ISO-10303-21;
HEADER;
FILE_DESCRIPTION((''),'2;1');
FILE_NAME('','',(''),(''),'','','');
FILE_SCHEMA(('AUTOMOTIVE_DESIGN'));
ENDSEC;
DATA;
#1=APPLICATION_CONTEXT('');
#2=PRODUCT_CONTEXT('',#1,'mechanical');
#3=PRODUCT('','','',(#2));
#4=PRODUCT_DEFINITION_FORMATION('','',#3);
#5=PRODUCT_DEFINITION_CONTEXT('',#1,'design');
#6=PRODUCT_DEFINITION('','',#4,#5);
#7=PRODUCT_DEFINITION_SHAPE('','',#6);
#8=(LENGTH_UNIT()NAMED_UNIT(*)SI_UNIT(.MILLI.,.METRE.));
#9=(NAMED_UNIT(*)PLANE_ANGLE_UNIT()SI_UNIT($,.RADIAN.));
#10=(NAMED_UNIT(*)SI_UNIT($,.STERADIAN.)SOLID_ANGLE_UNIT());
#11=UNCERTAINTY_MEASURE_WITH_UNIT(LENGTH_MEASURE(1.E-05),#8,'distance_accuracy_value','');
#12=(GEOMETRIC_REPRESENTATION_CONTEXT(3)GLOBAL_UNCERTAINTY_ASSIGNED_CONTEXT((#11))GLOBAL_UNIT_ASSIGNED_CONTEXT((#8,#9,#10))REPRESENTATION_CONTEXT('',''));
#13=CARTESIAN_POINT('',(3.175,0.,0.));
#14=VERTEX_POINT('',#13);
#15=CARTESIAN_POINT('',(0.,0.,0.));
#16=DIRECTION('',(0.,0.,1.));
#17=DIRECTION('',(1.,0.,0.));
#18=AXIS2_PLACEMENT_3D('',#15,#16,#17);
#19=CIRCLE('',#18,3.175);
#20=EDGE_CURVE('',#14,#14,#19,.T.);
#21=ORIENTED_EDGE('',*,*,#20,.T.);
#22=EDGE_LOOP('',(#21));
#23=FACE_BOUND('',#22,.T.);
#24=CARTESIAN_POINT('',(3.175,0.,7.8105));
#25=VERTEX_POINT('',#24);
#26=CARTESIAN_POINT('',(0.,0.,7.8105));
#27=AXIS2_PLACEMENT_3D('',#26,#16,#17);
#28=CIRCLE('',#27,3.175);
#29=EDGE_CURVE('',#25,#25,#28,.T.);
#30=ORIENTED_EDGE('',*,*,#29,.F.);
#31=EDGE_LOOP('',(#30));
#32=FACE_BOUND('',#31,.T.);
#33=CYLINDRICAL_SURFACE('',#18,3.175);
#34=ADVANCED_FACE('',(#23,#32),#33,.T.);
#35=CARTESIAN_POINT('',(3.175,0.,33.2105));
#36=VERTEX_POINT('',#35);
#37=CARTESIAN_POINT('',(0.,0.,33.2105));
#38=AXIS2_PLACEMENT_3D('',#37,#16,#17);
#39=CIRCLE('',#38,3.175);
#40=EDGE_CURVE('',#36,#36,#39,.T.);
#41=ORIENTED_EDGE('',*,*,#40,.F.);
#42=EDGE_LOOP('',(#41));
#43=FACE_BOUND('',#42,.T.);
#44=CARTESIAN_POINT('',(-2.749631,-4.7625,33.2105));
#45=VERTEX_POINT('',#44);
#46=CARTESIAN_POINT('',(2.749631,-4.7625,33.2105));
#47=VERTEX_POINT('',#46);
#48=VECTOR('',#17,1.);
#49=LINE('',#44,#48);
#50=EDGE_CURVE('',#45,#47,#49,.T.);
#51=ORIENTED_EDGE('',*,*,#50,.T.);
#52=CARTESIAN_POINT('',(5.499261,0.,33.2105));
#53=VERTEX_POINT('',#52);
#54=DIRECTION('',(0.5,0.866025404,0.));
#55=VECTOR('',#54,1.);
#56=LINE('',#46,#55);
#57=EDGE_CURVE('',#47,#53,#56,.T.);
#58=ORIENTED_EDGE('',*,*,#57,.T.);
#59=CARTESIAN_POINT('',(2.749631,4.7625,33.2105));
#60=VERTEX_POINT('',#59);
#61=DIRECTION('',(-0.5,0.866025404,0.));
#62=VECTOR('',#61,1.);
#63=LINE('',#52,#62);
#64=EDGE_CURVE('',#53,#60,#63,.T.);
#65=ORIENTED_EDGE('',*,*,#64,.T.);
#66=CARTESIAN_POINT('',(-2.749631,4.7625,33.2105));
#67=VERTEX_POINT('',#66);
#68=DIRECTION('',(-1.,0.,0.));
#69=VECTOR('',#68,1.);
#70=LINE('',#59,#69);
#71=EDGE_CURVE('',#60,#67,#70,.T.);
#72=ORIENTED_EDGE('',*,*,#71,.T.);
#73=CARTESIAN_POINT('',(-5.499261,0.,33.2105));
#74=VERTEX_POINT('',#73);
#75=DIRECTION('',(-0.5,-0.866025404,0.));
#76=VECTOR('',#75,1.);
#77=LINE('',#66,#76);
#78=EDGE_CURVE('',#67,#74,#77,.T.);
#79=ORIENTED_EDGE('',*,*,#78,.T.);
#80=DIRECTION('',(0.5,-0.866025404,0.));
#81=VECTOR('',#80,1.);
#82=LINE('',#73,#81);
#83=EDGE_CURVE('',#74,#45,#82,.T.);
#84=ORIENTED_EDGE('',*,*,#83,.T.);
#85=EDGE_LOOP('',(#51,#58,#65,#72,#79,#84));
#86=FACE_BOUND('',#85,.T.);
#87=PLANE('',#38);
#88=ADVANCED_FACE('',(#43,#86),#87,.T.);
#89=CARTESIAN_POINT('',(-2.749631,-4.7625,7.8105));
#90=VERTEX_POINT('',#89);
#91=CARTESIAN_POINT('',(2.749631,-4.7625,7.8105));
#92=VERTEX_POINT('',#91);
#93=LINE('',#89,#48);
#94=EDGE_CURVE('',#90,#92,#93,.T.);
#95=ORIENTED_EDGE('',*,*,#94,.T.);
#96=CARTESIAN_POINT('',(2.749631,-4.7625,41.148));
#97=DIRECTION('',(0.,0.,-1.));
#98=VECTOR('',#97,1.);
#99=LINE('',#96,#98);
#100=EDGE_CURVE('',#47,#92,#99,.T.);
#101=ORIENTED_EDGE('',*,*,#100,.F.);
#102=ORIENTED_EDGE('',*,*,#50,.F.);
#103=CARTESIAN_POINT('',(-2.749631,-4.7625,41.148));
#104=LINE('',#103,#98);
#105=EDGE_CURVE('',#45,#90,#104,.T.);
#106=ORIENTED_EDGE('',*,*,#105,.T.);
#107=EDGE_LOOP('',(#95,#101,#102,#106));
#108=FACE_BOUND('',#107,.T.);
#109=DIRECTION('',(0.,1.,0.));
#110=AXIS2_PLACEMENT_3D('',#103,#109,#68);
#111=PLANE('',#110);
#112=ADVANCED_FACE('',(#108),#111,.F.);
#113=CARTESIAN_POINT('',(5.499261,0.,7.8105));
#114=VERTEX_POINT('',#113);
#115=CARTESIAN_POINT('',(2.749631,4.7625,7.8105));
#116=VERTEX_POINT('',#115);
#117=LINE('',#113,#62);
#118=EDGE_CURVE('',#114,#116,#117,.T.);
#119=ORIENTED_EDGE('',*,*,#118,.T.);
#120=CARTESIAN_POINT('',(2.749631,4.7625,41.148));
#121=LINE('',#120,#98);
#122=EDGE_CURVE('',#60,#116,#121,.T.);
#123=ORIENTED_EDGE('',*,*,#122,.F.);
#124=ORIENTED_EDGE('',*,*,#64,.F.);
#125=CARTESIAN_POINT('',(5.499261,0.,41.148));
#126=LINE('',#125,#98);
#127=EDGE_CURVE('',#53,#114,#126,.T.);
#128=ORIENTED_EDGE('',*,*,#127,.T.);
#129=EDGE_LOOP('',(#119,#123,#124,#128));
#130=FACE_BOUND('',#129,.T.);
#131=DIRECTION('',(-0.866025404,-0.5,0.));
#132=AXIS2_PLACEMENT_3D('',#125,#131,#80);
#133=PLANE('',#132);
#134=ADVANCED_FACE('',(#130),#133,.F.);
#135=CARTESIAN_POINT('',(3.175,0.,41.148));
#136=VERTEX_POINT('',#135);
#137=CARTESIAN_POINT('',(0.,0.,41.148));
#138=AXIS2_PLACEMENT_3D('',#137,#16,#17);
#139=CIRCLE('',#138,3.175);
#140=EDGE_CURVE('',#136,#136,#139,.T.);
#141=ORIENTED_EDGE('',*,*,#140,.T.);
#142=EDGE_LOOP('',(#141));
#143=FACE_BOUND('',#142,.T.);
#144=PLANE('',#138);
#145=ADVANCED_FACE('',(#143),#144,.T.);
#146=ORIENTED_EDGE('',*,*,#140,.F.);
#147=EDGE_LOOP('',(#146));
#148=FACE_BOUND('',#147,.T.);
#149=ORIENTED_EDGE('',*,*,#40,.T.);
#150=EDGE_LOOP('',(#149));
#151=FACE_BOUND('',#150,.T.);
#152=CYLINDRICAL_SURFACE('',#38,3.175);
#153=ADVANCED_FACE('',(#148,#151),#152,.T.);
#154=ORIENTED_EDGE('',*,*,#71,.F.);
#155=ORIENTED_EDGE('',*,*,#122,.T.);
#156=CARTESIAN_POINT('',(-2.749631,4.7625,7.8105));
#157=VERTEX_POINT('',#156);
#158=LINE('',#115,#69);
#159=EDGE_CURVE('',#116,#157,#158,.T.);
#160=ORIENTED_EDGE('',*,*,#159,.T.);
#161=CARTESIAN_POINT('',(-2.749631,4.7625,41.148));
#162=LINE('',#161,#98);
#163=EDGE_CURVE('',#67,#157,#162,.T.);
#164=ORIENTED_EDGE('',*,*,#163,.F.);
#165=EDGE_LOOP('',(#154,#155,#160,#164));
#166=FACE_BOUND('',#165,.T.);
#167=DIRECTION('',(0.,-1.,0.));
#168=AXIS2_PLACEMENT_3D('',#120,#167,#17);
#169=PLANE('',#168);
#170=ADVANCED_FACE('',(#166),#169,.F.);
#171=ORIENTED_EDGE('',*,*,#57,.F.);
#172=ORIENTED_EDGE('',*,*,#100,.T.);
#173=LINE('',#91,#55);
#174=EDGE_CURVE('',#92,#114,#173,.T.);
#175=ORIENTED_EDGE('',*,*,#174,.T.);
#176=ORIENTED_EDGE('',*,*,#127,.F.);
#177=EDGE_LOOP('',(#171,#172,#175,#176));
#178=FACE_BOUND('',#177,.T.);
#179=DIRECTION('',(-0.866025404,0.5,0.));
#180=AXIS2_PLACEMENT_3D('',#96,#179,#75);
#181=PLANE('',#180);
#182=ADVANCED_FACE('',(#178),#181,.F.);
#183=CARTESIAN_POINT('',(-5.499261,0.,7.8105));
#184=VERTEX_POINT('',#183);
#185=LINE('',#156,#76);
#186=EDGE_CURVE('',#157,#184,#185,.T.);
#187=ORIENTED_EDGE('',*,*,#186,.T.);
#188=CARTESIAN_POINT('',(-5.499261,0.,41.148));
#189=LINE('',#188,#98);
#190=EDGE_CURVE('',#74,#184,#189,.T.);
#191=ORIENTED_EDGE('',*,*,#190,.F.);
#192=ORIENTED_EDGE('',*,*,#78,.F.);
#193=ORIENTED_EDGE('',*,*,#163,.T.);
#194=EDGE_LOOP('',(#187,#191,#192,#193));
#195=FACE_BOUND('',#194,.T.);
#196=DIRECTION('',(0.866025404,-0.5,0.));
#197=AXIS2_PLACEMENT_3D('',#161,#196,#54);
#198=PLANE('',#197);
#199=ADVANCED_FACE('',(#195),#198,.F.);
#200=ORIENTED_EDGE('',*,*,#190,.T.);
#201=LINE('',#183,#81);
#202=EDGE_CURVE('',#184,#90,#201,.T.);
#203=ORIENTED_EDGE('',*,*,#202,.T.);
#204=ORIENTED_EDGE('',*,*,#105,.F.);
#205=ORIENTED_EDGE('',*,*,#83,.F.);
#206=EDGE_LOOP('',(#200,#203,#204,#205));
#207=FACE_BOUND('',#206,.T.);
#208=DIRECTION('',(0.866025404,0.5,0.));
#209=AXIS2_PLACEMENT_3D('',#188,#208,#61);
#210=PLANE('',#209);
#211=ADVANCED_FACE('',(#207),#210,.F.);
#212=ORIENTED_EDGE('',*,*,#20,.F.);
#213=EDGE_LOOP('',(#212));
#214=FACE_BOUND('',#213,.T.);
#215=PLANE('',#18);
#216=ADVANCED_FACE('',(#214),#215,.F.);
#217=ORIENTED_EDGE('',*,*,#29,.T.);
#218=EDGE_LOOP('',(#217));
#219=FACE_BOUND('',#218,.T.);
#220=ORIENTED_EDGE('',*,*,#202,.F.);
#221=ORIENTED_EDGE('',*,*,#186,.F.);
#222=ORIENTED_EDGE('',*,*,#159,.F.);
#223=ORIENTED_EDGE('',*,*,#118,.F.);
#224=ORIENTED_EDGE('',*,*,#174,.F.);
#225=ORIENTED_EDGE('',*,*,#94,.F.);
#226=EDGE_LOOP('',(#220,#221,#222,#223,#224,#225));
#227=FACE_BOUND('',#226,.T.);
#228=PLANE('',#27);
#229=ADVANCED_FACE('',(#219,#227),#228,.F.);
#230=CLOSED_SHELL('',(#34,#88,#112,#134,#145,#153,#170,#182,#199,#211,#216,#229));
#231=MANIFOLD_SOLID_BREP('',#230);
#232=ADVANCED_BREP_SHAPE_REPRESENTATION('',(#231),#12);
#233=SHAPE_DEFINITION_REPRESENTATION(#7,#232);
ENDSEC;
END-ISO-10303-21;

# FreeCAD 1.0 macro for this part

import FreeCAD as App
import Part
import Sketcher
from FreeCAD import Vector
Q = App.Units.Quantity

doc = App.newDocument("Part")
params = doc.addObject("Spreadsheet::Sheet", "Params")
for row, (alias, value) in enumerate([
    ("pad1_length", "1.62 in"),
    ("sketch2_diameter", "0.25 in"),
    ("pocket1_length", "0.3125 in"),
    ("sketch3_diameter", "0.25 in"),
], start=1):
    params.set(f"A{row}", alias)
    params.set(f"B{row}", "=" + value)
    params.setAlias(f"B{row}", alias)

body = doc.addObject("PartDesign::Body", "Body")

# Sketch on XY plane
sketch1 = body.newObject("Sketcher::SketchObject", "Sketch")
sketch1.AttachmentSupport = (doc.getObject("XY_Plane"), [""])
sketch1.MapMode = "FlatFace"
sketch1.addGeometry([
    Part.LineSegment(Vector(-3, -5, 0), Vector(3, -5, 0)),  # 0
    Part.LineSegment(Vector(3, -5, 0), Vector(5, 0, 0)),  # 1
    Part.LineSegment(Vector(5, 0, 0), Vector(3, 5, 0)),  # 2
    Part.LineSegment(Vector(3, 5, 0), Vector(-3, 5, 0)),  # 3
    Part.LineSegment(Vector(-3, 5, 0), Vector(-5, 0, 0)),  # 4
    Part.LineSegment(Vector(-5, 0, 0), Vector(-3, -5, 0)),  # 5
], False)
sketch1.addConstraint([
    Sketcher.Constraint("Coincident", 0, 2, 1, 1),
    Sketcher.Constraint("Coincident", 1, 2, 2, 1),
    Sketcher.Constraint("Coincident", 2, 2, 3, 1),
    Sketcher.Constraint("Coincident", 3, 2, 4, 1),
    Sketcher.Constraint("Coincident", 4, 2, 5, 1),
    Sketcher.Constraint("Coincident", 5, 2, 0, 1),
    Sketcher.Constraint("Horizontal", 0),
    Sketcher.Constraint("Horizontal", 3),
    Sketcher.Constraint("Symmetric", 0, 2, 3, 2, -1, 1),
    Sketcher.Constraint("Symmetric", 1, 2, 4, 2, -1, 1),
    Sketcher.Constraint("PointOnObject", 1, 2, -1),
    Sketcher.Constraint("Parallel", 2, 5),
    Sketcher.Constraint("Vertical", 0, 2, 2, 2),
    Sketcher.Constraint("Angle", 1, Q("60 deg")),
    Sketcher.Constraint("DistanceY", 0, 2, -1, 1, Q("0.1875 in")),
    Sketcher.Constraint("DistanceX", 0, 1, 0, 2, 5.499261),
])
pad1 = body.newObject("PartDesign::Pad", "Pad")
pad1.Profile = sketch1
pad1.setExpression("Length", "Params.pad1_length")

# Sketch on XY plane
sketch2 = body.newObject("Sketcher::SketchObject", "Sketch001")
sketch2.AttachmentSupport = (doc.getObject("XY_Plane"), [""])
sketch2.MapMode = "FlatFace"
sketch2.AttachmentOffset = App.Placement(Vector(0, 0, 1.62 * 25.4), App.Rotation())
sketch2.addGeometry([
    Part.LineSegment(Vector(-10.9, 10.1, 0), Vector(-10.9, -10.1, 0)),  # 0
    Part.LineSegment(Vector(-10.9, -10.1, 0), Vector(10.9, -10.1, 0)),  # 1
    Part.LineSegment(Vector(10.9, -10.1, 0), Vector(10.9, 10.1, 0)),  # 2
    Part.LineSegment(Vector(10.9, 10.1, 0), Vector(-10.9, 10.1, 0)),  # 3
    Part.Circle(Vector(0, 0, 0), Vector(0, 0, 1), 3.2),  # 4
], False)
sketch2.addConstraint([
    Sketcher.Constraint("Coincident", 0, 2, 1, 1),
    Sketcher.Constraint("Coincident", 1, 2, 2, 1),
    Sketcher.Constraint("Coincident", 2, 2, 3, 1),
    Sketcher.Constraint("Coincident", 3, 2, 0, 1),
    Sketcher.Constraint("Vertical", 0),
    Sketcher.Constraint("Horizontal", 1),
    Sketcher.Constraint("Vertical", 2),
    Sketcher.Constraint("Horizontal", 3),
    Sketcher.Constraint("Coincident", 4, 3, -1, 1),
    Sketcher.Constraint("Symmetric", 0, 2, 2, 2, -1, 1),
    Sketcher.Constraint("Diameter", 4, Q("0.25 in")),
    Sketcher.Constraint("DistanceX", 1, 1, 1, 2, 21.726),
    Sketcher.Constraint("DistanceY", 0, 2, 0, 1, 20.254),
])
sketch2.setExpression("Constraints[10]", "Params.sketch2_diameter")
pocket1 = body.newObject("PartDesign::Pocket", "Pocket")
pocket1.Profile = sketch2
pocket1.setExpression("Length", "Params.pocket1_length")

# Sketch on XY plane
sketch3 = body.newObject("Sketcher::SketchObject", "Sketch002")
sketch3.AttachmentSupport = (doc.getObject("XY_Plane"), [""])
sketch3.MapMode = "FlatFace"
sketch3.AttachmentOffset = App.Placement(Vector(0, 0, 0.3075 * 25.4), App.Rotation())
sketch3.addGeometry([
    Part.LineSegment(Vector(-10.9, 10.1, 0), Vector(-10.9, -10.1, 0)),  # 0
    Part.LineSegment(Vector(-10.9, -10.1, 0), Vector(10.9, -10.1, 0)),  # 1
    Part.LineSegment(Vector(10.9, -10.1, 0), Vector(10.9, 10.1, 0)),  # 2
    Part.LineSegment(Vector(10.9, 10.1, 0), Vector(-10.9, 10.1, 0)),  # 3
    Part.Circle(Vector(0, 0, 0), Vector(0, 0, 1), 3.2),  # 4
], False)
sketch3.addConstraint([
    Sketcher.Constraint("Coincident", 0, 2, 1, 1),
    Sketcher.Constraint("Coincident", 1, 2, 2, 1),
    Sketcher.Constraint("Coincident", 2, 2, 3, 1),
    Sketcher.Constraint("Coincident", 3, 2, 0, 1),
    Sketcher.Constraint("Vertical", 0),
    Sketcher.Constraint("Horizontal", 1),
    Sketcher.Constraint("Vertical", 2),
    Sketcher.Constraint("Horizontal", 3),
    Sketcher.Constraint("Coincident", 4, 3, -1, 1),
    Sketcher.Constraint("Symmetric", 0, 2, 2, 2, -1, 1),
    Sketcher.Constraint("Diameter", 4, Q("0.25 in")),
    Sketcher.Constraint("DistanceX", 1, 1, 1, 2, 21.726),
    Sketcher.Constraint("DistanceY", 0, 2, 0, 1, 20.254),
])
sketch3.setExpression("Constraints[10]", "Params.sketch3_diameter")
pocket2 = body.newObject("PartDesign::Pocket", "Pocket001")
pocket2.Profile = sketch3
pocket2.Type = "ThroughAll"

doc.recompute()
